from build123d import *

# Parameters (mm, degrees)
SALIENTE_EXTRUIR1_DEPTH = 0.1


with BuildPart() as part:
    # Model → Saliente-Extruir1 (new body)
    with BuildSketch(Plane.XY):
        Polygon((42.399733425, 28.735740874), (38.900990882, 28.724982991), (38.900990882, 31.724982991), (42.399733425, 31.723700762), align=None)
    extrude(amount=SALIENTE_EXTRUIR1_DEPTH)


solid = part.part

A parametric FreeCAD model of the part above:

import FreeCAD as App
import Part
import Sketcher

V = App.Vector


def add_polygon(sketch, points):
    """Adds a closed chain of lines whose ends are joined by coincident constraints."""
    first, n = sketch.GeometryCount, len(points)
    for a, b in zip(points, points[1:] + points[:1]):
        sketch.addGeometry(Part.LineSegment(App.Vector(*a, 0), App.Vector(*b, 0)), False)
    for i in range(n):
        sketch.addConstraint(Sketcher.Constraint("Coincident", first + i, 2, first + (i + 1) % n, 1))

doc = App.newDocument("Part")
body = doc.addObject("PartDesign::Body", "Body")

sketch1 = body.newObject("Sketcher::SketchObject", "Sketch")
sketch1.AttachmentSupport = (doc.getObject("XY_Plane"), [""])
sketch1.MapMode = "FlatFace"
add_polygon(sketch1, [(38.900991, 28.724983), (42.399733, 28.735741), (42.399733, 31.723701), (38.900991, 31.724983)])
sketch1.addConstraint([
    Sketcher.Constraint("Vertical", 1),
    Sketcher.Constraint("Vertical", 3),
    Sketcher.Constraint("DistanceY", 3, 2, 3, 1, 3.0),
    Sketcher.Constraint("DistanceY", 1, 1, 1, 2, 2.98796),
    Sketcher.Constraint("DistanceY", -1, 1, 1, 2, 31.723701),
    Sketcher.Constraint("Distance", 0, 3.498759),
    Sketcher.Constraint("DistanceX", -1, 1, 2, 2, 38.900991),
    Sketcher.Constraint("DistanceY", -1, 1, 2, 2, 31.724983),
])
pad1 = body.newObject("PartDesign::Pad", "Pad")
pad1.Profile = sketch1
pad1.Length = 0.1

doc.recompute()
